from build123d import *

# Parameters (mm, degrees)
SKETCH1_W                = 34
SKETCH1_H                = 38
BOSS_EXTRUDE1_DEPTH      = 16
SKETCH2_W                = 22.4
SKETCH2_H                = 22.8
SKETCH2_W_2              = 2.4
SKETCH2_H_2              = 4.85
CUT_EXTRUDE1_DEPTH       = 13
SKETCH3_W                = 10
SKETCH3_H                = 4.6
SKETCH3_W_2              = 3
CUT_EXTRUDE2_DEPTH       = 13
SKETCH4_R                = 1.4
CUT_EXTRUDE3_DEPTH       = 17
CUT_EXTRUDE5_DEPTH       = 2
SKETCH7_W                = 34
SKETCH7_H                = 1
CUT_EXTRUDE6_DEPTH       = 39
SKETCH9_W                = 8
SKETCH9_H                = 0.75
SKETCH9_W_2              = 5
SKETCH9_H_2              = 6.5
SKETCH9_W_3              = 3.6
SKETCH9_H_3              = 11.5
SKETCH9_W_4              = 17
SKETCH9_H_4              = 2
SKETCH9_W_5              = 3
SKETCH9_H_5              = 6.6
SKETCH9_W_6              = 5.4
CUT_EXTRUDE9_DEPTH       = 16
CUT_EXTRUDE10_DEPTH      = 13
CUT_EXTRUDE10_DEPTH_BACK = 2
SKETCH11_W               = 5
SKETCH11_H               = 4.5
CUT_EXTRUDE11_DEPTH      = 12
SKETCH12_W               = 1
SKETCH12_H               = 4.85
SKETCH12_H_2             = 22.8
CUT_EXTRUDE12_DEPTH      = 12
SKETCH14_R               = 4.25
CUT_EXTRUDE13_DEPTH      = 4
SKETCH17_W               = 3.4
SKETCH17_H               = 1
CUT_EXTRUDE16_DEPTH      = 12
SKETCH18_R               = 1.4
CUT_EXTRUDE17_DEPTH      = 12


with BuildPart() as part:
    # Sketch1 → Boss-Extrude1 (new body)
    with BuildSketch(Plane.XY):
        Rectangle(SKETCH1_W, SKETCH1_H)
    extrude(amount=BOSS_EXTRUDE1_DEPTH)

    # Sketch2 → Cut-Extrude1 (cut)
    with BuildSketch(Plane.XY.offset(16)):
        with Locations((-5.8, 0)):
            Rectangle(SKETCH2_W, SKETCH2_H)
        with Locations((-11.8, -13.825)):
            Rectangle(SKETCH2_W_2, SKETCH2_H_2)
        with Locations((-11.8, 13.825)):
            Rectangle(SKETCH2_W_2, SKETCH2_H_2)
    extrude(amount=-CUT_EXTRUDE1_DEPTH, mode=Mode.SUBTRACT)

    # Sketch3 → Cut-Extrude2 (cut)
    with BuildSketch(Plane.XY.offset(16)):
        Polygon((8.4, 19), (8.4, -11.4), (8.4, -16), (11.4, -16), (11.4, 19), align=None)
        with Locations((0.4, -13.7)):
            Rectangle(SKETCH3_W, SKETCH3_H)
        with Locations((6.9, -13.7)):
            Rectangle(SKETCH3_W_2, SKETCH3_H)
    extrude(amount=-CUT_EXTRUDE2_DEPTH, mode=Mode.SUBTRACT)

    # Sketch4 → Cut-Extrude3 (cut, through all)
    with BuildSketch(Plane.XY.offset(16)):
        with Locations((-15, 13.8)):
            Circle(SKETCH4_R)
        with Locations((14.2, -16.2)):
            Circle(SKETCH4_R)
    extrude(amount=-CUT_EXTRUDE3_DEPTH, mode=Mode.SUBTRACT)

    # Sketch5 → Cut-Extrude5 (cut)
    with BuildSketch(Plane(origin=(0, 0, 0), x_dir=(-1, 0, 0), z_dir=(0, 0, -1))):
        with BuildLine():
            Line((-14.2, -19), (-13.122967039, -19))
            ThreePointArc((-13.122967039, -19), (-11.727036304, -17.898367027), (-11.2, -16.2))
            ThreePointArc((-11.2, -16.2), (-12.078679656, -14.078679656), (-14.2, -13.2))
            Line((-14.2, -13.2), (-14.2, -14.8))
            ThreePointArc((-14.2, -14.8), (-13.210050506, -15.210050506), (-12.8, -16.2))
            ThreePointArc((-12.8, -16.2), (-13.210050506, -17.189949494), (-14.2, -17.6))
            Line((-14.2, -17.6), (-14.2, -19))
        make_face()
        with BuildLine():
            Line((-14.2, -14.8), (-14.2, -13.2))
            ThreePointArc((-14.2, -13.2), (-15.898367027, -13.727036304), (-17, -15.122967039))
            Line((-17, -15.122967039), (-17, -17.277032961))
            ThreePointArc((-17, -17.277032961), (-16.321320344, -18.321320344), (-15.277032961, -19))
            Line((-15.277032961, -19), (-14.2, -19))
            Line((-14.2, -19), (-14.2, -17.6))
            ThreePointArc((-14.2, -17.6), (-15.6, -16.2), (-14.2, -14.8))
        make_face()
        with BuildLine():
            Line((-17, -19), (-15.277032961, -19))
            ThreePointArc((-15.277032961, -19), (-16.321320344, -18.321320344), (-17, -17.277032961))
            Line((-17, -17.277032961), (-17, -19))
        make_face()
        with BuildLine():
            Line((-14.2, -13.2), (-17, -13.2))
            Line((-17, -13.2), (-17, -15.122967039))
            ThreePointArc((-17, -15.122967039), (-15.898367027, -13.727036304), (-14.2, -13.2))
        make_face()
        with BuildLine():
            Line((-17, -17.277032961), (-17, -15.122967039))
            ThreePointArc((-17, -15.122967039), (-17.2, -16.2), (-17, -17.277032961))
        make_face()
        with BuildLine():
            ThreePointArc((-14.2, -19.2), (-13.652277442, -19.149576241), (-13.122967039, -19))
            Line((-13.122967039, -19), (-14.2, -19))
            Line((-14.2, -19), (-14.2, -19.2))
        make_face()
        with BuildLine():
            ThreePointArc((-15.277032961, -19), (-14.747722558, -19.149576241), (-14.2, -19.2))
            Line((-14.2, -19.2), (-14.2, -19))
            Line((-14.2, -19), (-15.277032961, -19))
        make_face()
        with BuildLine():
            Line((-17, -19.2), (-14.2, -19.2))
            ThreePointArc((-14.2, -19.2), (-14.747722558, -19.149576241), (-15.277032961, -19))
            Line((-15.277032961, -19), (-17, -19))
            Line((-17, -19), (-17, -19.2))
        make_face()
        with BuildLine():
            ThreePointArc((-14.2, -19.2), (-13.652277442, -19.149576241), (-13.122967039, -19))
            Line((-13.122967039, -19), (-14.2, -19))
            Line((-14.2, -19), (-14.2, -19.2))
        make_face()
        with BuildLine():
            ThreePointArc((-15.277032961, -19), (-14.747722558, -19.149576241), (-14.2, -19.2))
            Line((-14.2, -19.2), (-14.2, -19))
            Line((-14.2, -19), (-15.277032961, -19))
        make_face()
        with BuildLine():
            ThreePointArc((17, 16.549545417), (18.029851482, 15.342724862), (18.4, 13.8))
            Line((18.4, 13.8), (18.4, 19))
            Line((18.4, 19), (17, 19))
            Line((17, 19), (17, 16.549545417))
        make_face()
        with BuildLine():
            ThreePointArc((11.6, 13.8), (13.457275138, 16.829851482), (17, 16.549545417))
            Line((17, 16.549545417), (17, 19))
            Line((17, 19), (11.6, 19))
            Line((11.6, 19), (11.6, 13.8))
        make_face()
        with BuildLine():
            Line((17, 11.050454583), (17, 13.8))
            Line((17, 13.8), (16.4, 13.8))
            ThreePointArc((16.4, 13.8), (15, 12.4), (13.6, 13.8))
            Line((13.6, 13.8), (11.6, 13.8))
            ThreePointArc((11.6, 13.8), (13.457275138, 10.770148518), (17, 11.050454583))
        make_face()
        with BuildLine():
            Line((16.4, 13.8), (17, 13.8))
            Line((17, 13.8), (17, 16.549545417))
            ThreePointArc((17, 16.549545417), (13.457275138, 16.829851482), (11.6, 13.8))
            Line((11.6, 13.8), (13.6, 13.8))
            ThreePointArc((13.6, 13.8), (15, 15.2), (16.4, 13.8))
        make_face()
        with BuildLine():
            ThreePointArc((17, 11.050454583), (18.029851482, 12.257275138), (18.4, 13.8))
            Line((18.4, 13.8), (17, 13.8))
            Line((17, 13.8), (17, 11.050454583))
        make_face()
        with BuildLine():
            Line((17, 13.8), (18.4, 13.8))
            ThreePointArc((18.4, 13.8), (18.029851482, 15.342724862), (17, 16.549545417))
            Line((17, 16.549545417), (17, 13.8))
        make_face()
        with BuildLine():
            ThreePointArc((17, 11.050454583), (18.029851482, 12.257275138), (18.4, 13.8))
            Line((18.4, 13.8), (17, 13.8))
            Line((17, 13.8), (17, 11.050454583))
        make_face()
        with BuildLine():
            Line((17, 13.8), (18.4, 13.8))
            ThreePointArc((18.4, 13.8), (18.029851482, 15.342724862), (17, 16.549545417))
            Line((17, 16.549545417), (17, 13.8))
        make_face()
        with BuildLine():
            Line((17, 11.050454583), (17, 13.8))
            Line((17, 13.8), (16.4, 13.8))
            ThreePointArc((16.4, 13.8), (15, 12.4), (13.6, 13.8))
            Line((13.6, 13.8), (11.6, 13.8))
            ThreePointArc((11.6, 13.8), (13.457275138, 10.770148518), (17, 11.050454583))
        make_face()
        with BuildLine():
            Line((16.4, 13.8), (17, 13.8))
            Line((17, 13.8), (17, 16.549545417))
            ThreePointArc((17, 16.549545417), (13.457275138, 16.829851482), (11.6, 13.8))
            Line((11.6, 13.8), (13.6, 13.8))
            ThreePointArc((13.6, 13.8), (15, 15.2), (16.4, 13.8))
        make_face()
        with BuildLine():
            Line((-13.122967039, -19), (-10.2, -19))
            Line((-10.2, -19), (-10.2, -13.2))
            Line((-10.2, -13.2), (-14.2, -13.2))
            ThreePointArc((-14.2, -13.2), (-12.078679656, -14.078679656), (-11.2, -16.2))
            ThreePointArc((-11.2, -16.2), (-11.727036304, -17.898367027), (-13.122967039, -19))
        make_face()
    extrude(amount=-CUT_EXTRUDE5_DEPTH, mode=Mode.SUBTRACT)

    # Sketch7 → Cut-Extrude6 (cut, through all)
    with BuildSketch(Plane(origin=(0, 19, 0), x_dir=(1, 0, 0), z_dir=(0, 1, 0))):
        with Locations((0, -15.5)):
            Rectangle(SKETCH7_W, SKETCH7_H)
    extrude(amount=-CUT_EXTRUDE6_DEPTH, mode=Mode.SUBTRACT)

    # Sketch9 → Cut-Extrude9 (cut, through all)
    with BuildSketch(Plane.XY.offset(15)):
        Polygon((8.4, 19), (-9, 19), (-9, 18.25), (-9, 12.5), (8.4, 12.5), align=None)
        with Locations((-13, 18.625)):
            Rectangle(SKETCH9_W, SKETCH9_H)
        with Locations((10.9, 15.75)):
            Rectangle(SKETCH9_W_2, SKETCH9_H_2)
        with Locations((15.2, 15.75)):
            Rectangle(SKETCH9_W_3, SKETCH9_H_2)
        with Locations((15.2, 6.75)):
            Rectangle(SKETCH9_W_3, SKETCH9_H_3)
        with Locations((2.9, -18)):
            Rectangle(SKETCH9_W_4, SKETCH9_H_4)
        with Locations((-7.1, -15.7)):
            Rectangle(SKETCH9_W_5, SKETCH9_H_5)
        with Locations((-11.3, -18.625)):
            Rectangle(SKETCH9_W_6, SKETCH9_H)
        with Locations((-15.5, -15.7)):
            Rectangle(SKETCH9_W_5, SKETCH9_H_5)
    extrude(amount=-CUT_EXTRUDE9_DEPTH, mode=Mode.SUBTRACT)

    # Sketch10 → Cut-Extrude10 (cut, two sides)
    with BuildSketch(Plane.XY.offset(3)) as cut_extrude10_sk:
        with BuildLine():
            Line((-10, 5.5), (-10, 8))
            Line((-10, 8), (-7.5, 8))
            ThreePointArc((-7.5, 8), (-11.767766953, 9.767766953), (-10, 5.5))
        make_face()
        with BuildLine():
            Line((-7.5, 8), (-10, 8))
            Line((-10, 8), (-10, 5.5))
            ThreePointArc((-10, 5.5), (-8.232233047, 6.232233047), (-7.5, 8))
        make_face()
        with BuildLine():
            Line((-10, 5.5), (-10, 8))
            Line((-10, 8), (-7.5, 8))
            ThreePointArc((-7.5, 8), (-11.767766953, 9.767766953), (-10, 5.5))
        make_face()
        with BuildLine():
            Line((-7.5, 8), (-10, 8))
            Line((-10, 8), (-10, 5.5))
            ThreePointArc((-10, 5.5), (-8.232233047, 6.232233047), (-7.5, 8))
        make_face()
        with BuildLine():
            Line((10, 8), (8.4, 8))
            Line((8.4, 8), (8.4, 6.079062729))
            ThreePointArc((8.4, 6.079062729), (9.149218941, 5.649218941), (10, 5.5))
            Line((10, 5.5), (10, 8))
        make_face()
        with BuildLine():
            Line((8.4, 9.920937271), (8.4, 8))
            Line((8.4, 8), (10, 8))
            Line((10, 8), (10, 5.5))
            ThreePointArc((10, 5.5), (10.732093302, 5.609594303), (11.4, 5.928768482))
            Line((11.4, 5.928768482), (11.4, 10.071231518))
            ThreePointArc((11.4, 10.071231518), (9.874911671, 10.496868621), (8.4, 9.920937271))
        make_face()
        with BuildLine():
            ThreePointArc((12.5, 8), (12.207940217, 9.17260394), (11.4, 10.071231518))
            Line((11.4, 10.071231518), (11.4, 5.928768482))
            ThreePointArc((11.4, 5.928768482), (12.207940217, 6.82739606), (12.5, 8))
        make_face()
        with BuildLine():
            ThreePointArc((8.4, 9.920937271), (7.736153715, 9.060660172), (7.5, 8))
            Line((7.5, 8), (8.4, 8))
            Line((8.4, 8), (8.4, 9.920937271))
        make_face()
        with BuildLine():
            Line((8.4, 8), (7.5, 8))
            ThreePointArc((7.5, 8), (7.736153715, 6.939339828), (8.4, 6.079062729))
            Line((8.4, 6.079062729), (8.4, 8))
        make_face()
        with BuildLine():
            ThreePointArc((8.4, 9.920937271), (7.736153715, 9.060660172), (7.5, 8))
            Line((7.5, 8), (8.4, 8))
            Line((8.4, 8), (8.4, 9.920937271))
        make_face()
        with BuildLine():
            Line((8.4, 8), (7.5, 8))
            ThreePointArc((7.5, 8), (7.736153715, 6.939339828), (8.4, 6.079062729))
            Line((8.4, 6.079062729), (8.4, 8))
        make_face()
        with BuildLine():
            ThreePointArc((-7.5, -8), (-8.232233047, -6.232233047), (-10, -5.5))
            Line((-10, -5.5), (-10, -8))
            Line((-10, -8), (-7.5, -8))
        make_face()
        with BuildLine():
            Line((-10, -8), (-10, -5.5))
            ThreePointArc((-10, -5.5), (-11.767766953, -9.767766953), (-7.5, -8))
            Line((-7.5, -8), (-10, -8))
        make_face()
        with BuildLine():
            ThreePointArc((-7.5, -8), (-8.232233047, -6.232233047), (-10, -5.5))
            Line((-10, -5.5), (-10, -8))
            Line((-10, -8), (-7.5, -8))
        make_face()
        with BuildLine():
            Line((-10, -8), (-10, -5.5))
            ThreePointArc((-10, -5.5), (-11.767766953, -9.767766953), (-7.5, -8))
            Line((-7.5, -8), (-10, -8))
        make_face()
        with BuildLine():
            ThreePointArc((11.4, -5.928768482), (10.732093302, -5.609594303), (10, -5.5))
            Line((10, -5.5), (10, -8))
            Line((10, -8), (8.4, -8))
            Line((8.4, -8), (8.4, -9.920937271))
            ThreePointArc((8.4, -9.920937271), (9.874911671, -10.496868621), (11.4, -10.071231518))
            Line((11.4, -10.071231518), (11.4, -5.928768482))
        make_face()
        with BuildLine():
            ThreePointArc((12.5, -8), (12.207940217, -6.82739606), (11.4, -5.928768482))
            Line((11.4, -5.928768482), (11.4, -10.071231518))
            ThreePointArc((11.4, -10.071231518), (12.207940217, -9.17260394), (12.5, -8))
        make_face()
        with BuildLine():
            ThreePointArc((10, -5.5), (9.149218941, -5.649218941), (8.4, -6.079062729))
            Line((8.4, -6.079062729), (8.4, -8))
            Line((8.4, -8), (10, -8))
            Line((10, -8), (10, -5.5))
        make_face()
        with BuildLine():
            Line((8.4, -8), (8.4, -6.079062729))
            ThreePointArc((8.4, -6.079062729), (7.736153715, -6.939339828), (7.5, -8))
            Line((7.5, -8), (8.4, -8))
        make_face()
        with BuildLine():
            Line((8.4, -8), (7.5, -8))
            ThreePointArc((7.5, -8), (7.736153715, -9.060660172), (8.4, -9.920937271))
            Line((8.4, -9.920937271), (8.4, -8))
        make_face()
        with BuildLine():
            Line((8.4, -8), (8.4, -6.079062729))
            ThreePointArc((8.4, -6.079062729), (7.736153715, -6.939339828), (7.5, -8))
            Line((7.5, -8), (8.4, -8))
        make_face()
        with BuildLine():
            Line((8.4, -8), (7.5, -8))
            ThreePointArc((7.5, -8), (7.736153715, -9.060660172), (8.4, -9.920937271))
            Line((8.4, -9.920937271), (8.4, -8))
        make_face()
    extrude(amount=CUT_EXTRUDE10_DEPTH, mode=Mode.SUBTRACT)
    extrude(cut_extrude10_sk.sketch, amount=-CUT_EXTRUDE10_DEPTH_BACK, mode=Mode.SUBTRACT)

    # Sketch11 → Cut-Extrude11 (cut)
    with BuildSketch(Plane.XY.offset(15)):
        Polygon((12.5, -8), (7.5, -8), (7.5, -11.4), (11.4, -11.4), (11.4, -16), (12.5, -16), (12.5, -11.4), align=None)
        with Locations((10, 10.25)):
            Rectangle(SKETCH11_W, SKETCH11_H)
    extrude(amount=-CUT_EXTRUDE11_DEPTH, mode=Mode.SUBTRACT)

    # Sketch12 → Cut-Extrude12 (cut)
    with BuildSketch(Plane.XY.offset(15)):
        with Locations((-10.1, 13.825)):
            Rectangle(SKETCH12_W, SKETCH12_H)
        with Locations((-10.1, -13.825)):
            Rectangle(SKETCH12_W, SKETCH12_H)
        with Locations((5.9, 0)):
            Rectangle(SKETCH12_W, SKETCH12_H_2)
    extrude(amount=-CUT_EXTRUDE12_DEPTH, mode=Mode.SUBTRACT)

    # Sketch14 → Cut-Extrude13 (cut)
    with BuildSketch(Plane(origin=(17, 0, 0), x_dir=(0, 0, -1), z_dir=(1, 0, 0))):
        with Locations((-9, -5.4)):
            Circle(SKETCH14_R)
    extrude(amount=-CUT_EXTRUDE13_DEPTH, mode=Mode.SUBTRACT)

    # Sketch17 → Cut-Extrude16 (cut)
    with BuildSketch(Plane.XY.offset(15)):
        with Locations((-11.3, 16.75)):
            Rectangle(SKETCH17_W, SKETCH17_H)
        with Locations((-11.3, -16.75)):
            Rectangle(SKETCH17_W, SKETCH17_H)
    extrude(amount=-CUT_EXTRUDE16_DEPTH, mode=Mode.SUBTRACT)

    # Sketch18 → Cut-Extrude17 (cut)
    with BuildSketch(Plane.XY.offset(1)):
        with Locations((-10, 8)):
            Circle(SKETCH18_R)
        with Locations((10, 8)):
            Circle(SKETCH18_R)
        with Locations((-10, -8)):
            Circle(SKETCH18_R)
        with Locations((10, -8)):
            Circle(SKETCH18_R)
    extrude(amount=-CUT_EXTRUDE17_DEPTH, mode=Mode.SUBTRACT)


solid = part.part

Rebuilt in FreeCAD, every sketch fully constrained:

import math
import FreeCAD as App
import Part
import Sketcher
from FreeCAD import Vector

doc = App.newDocument("Part")
body = doc.addObject("PartDesign::Body", "Body")

sketch1 = body.newObject("Sketcher::SketchObject", "Sketch")
sketch1.AttachmentSupport = (doc.getObject("XY_Plane"), [""])
sketch1.MapMode = "FlatFace"
sketch1.addGeometry([
    Part.LineSegment(Vector(-17, 19, 0), Vector(-17, -19, 0)),
    Part.LineSegment(Vector(-17, -19, 0), Vector(17, -19, 0)),
    Part.LineSegment(Vector(17, -19, 0), Vector(17, 19, 0)),
    Part.LineSegment(Vector(17, 19, 0), Vector(-17, 19, 0)),
], False)
sketch1.addConstraint([
    Sketcher.Constraint("Coincident", 0, 2, 1, 1),
    Sketcher.Constraint("Coincident", 1, 2, 2, 1),
    Sketcher.Constraint("Coincident", 2, 2, 3, 1),
    Sketcher.Constraint("Coincident", 3, 2, 0, 1),
    Sketcher.Constraint("Vertical", 0),
    Sketcher.Constraint("Horizontal", 1),
    Sketcher.Constraint("Vertical", 2),
    Sketcher.Constraint("Horizontal", 3),
    Sketcher.Constraint("Symmetric", 0, 2, 2, 2, -1, 1),
    Sketcher.Constraint("DistanceX", 1, 1, 1, 2, 34.0),
    Sketcher.Constraint("DistanceY", 0, 2, 0, 1, 38.0),
])
pad1 = body.newObject("PartDesign::Pad", "Pad")
pad1.Profile = sketch1
pad1.Length = 16

sketch2 = body.newObject("Sketcher::SketchObject", "Sketch001")
sketch2.AttachmentSupport = (doc.getObject("XY_Plane"), [""])
sketch2.MapMode = "FlatFace"
sketch2.AttachmentOffset = App.Placement(Vector(0, 0, 16), App.Rotation())
sketch2.addGeometry([
    Part.LineSegment(Vector(-17, 11.4, 0), Vector(-17, -11.4, 0)),
    Part.LineSegment(Vector(-17, -11.4, 0), Vector(-13, -11.4, 0)),
    Part.LineSegment(Vector(-13, -11.4, 0), Vector(-13, -16.25, 0)),
    Part.LineSegment(Vector(-13, -16.25, 0), Vector(-10.6, -16.25, 0)),
    Part.LineSegment(Vector(-10.6, -16.25, 0), Vector(-10.6, -11.4, 0)),
    Part.LineSegment(Vector(-10.6, -11.4, 0), Vector(5.4, -11.4, 0)),
    Part.LineSegment(Vector(5.4, -11.4, 0), Vector(5.4, 11.4, 0)),
    Part.LineSegment(Vector(5.4, 11.4, 0), Vector(-10.6, 11.4, 0)),
    Part.LineSegment(Vector(-10.6, 11.4, 0), Vector(-10.6, 16.25, 0)),
    Part.LineSegment(Vector(-10.6, 16.25, 0), Vector(-13, 16.25, 0)),
    Part.LineSegment(Vector(-13, 16.25, 0), Vector(-13, 11.4, 0)),
    Part.LineSegment(Vector(-13, 11.4, 0), Vector(-17, 11.4, 0)),
], False)
sketch2.addConstraint([
    Sketcher.Constraint("Coincident", 0, 2, 1, 1),
    Sketcher.Constraint("Coincident", 1, 2, 2, 1),
    Sketcher.Constraint("Coincident", 2, 2, 3, 1),
    Sketcher.Constraint("Coincident", 3, 2, 4, 1),
    Sketcher.Constraint("Coincident", 4, 2, 5, 1),
    Sketcher.Constraint("Coincident", 5, 2, 6, 1),
    Sketcher.Constraint("Coincident", 6, 2, 7, 1),
    Sketcher.Constraint("Coincident", 7, 2, 8, 1),
    Sketcher.Constraint("Coincident", 8, 2, 9, 1),
    Sketcher.Constraint("Coincident", 9, 2, 10, 1),
    Sketcher.Constraint("Coincident", 10, 2, 11, 1),
    Sketcher.Constraint("Coincident", 11, 2, 0, 1),
    Sketcher.Constraint("Vertical", 0),
    Sketcher.Constraint("Horizontal", 1),
    Sketcher.Constraint("Vertical", 2),
    Sketcher.Constraint("Horizontal", 3),
    Sketcher.Constraint("Vertical", 4),
    Sketcher.Constraint("Horizontal", 5),
    Sketcher.Constraint("Vertical", 6),
    Sketcher.Constraint("Horizontal", 7),
    Sketcher.Constraint("Vertical", 8),
    Sketcher.Constraint("Horizontal", 9),
    Sketcher.Constraint("Vertical", 10),
    Sketcher.Constraint("Horizontal", 11),
    Sketcher.Constraint("Symmetric", 4, 2, 7, 2, -1),
    Sketcher.Constraint("Symmetric", 2, 2, 9, 2, -1),
    Sketcher.Constraint("Horizontal", 1, 2, 4, 2),
    Sketcher.Constraint("Horizontal", 7, 2, 10, 2),
    Sketcher.Constraint("DistanceX", 1, 1, 1, 2, 4.0),
    Sketcher.Constraint("DistanceX", 5, 1, 5, 2, 16.0),
    Sketcher.Constraint("DistanceX", 3, 1, 3, 2, 2.4),
    Sketcher.Constraint("DistanceY", 0, 2, 0, 1, 22.8),
    Sketcher.Constraint("DistanceX", 0, 2, -1, 1, 17.0),
    Sketcher.Constraint("DistanceY", 2, 2, 2, 1, 4.85),
])
pocket1 = body.newObject("PartDesign::Pocket", "Pocket")
pocket1.Profile = sketch2
pocket1.Length = 13

sketch3 = body.newObject("Sketcher::SketchObject", "Sketch002")
sketch3.AttachmentSupport = (doc.getObject("XY_Plane"), [""])
sketch3.MapMode = "FlatFace"
sketch3.AttachmentOffset = App.Placement(Vector(0, 0, 16), App.Rotation())
sketch3.addGeometry([
    Part.LineSegment(Vector(8.4, 19, 0), Vector(8.4, -11.4, 0)),
    Part.LineSegment(Vector(8.4, -11.4, 0), Vector(-4.6, -11.4, 0)),
    Part.LineSegment(Vector(-4.6, -11.4, 0), Vector(-4.6, -16, 0)),
    Part.LineSegment(Vector(-4.6, -16, 0), Vector(11.4, -16, 0)),
    Part.LineSegment(Vector(11.4, -16, 0), Vector(11.4, 19, 0)),
    Part.LineSegment(Vector(11.4, 19, 0), Vector(8.4, 19, 0)),
], False)
sketch3.addConstraint([
    Sketcher.Constraint("Coincident", 0, 2, 1, 1),
    Sketcher.Constraint("Coincident", 1, 2, 2, 1),
    Sketcher.Constraint("Coincident", 2, 2, 3, 1),
    Sketcher.Constraint("Coincident", 3, 2, 4, 1),
    Sketcher.Constraint("Coincident", 4, 2, 5, 1),
    Sketcher.Constraint("Coincident", 5, 2, 0, 1),
    Sketcher.Constraint("Vertical", 0),
    Sketcher.Constraint("Horizontal", 1),
    Sketcher.Constraint("Vertical", 2),
    Sketcher.Constraint("Horizontal", 3),
    Sketcher.Constraint("Vertical", 4),
    Sketcher.Constraint("Horizontal", 5),
    Sketcher.Constraint("DistanceX", 1, 2, 1, 1, 13.0),
    Sketcher.Constraint("DistanceX", 3, 1, 3, 2, 16.0),
    Sketcher.Constraint("DistanceY", 4, 1, 4, 2, 35.0),
    Sketcher.Constraint("DistanceY", 0, 2, 0, 1, 30.4),
    Sketcher.Constraint("DistanceY", 2, 2, -1, 1, 16.0),
    Sketcher.Constraint("DistanceX", -1, 1, 0, 2, 8.4),
])
pocket2 = body.newObject("PartDesign::Pocket", "Pocket001")
pocket2.Profile = sketch3
pocket2.Length = 13

sketch4 = body.newObject("Sketcher::SketchObject", "Sketch003")
sketch4.AttachmentSupport = (doc.getObject("XY_Plane"), [""])
sketch4.MapMode = "FlatFace"
sketch4.AttachmentOffset = App.Placement(Vector(0, 0, 16), App.Rotation())
sketch4.addGeometry([
    Part.Circle(Vector(-15, 13.8, 0), Vector(0, 0, 1), 1.4),
    Part.Circle(Vector(14.2, -16.2, 0), Vector(0, 0, 1), 1.4),
], False)
sketch4.addConstraint([
    Sketcher.Constraint("Equal", 0, 1),
    Sketcher.Constraint("Diameter", 0, 2.8),
    Sketcher.Constraint("DistanceX", 0, 3, -1, 1, 15.0),
    Sketcher.Constraint("DistanceY", 1, 3, 0, 3, 30.0),
    Sketcher.Constraint("DistanceY", -1, 1, 0, 3, 13.8),
    Sketcher.Constraint("DistanceX", -1, 1, 1, 3, 14.2),
])
pocket3 = body.newObject("PartDesign::Pocket", "Pocket002")
pocket3.Profile = sketch4
pocket3.Type = "ThroughAll"

sketch5 = body.newObject("Sketcher::SketchObject", "Sketch004")
sketch5.AttachmentSupport = (doc.getObject("XY_Plane"), [""])
sketch5.MapMode = "FlatFace"
sketch5.addGeometry([
    Part.LineSegment(Vector(17, -17.277033, 0), Vector(17, -19.2, 0)),
    Part.LineSegment(Vector(17, -19.2, 0), Vector(14.2, -19.2, 0)),
    Part.ArcOfCircle(Part.Circle(Vector(14.2, -16.2, 0), Vector(0, 0, 1), 3), math.radians(-111.03947), math.radians(-90)),
    Part.LineSegment(Vector(13.122967, -19, 0), Vector(10.2, -19, 0)),
    Part.LineSegment(Vector(10.2, -19, 0), Vector(10.2, -13.2, 0)),
    Part.LineSegment(Vector(10.2, -13.2, 0), Vector(17, -13.2, 0)),
    Part.LineSegment(Vector(17, -13.2, 0), Vector(17, -15.122967, 0)),
    Part.ArcOfCircle(Part.Circle(Vector(14.2, -16.2, 0), Vector(0, 0, 1), 3), math.radians(-21.03947), math.radians(21.03947)),
    Part.ArcOfCircle(Part.Circle(Vector(14.2, -16.2, 0), Vector(0, 0, 1), 1.4), math.radians(90), math.radians(180)),
    Part.ArcOfCircle(Part.Circle(Vector(14.2, -16.2, 0), Vector(0, 0, 1), 1.4), math.radians(180), math.radians(270)),
    Part.ArcOfCircle(Part.Circle(Vector(14.2, -16.2, 0), Vector(0, 0, 1), 1.4), math.radians(-90), math.radians(90)),
    Part.LineSegment(Vector(-11.6, 19, 0), Vector(-11.6, 13.8, 0)),
    Part.ArcOfCircle(Part.Circle(Vector(-15, 13.8, 0), Vector(0, 0, 1), 3.4), math.radians(-126.031879), math.radians(0)),
    Part.ArcOfCircle(Part.Circle(Vector(-15, 13.8, 0), Vector(0, 0, 1), 3.4), math.radians(180), math.radians(233.968121)),
    Part.LineSegment(Vector(-18.4, 13.8, 0), Vector(-18.4, 19, 0)),
    Part.LineSegment(Vector(-18.4, 19, 0), Vector(-11.6, 19, 0)),
    Part.Circle(Vector(-15, 13.8, 0), Vector(0, 0, 1), 1.4),
], False)
sketch5.addConstraint([
    Sketcher.Constraint("Coincident", 0, 2, 1, 1),
    Sketcher.Constraint("Tangent", 1, 2, 2, 2),
    Sketcher.Constraint("Coincident", 2, 1, 3, 1),
    Sketcher.Constraint("Coincident", 3, 2, 4, 1),
    Sketcher.Constraint("Coincident", 4, 2, 5, 1),
    Sketcher.Constraint("Coincident", 5, 2, 6, 1),
    Sketcher.Constraint("Coincident", 6, 2, 7, 2),
    Sketcher.Constraint("Coincident", 7, 1, 0, 1),
    Sketcher.Constraint("Tangent", 8, 2, 9, 1),
    Sketcher.Constraint("Tangent", 9, 2, 10, 1),
    Sketcher.Constraint("Tangent", 10, 2, 8, 1),
    Sketcher.Constraint("Tangent", 11, 2, 12, 2),
    Sketcher.Constraint("Tangent", 12, 1, 13, 2),
    Sketcher.Constraint("Tangent", 13, 1, 14, 1),
    Sketcher.Constraint("Coincident", 14, 2, 15, 1),
    Sketcher.Constraint("Coincident", 15, 2, 11, 1),
    Sketcher.Constraint("Vertical", 0),
    Sketcher.Constraint("Horizontal", 1),
    Sketcher.Constraint("Horizontal", 3),
    Sketcher.Constraint("Vertical", 4),
    Sketcher.Constraint("Horizontal", 5),
    Sketcher.Constraint("Vertical", 6),
    Sketcher.Constraint("Vertical", 11),
    Sketcher.Constraint("Vertical", 14),
    Sketcher.Constraint("Horizontal", 15),
    Sketcher.Constraint("Coincident", 7, 3, 2, 3),
    Sketcher.Constraint("Coincident", 8, 3, 2, 3),
    Sketcher.Constraint("Coincident", 16, 3, 12, 3),
    Sketcher.Constraint("Equal", 2, 7),
    Sketcher.Constraint("Equal", 12, 13),
    Sketcher.Constraint("Equal", 10, 16),
    Sketcher.Constraint("Horizontal", 10, 3, 8, 2),
    Sketcher.Constraint("Vertical", 0, 2, 5, 2),
    Sketcher.Constraint("Vertical", 1, 2, 9, 2),
    Sketcher.Constraint("Vertical", 9, 2, 10, 2),
    Sketcher.Constraint("Equal", 5, 15),
    Sketcher.Constraint("Equal", 0, 6),
    Sketcher.Constraint("Radius", 2, 3.0),
    Sketcher.Constraint("Diameter", 16, 2.8),
    Sketcher.Constraint("Radius", 12, 3.4),
    Sketcher.Constraint("DistanceX", 1, 2, 1, 1, 2.8),
    Sketcher.Constraint("DistanceY", 4, 1, 4, 2, 5.8),
    Sketcher.Constraint("DistanceY", 11, 2, 11, 1, 5.2),
    Sketcher.Constraint("DistanceX", 12, 3, -1, 1, 15.0),
    Sketcher.Constraint("DistanceX", -1, 1, 0, 2, 17.0),
    Sketcher.Constraint("DistanceY", 2, 1, -1, 1, 19.0),
    Sketcher.Constraint("DistanceX", 12, 1, -1, 1, 17.0),
    Sketcher.Constraint("DistanceY", -1, 1, 14, 2, 19.0),
])
pocket4 = body.newObject("PartDesign::Pocket", "Pocket003")
pocket4.Profile = sketch5
pocket4.Length = 2
pocket4.Reversed = True

sketch6 = body.newObject("Sketcher::SketchObject", "Sketch005")
sketch6.AttachmentSupport = (doc.getObject("XZ_Plane"), [""])
sketch6.MapMode = "FlatFace"
sketch6.AttachmentOffset = App.Placement(Vector(0, 0, -19), App.Rotation())
sketch6.addGeometry([
    Part.LineSegment(Vector(-17, 15, 0), Vector(-17, 16, 0)),
    Part.LineSegment(Vector(-17, 16, 0), Vector(17, 16, 0)),
    Part.LineSegment(Vector(17, 16, 0), Vector(17, 15, 0)),
    Part.LineSegment(Vector(17, 15, 0), Vector(-17, 15, 0)),
], False)
sketch6.addConstraint([
    Sketcher.Constraint("Coincident", 0, 2, 1, 1),
    Sketcher.Constraint("Coincident", 1, 2, 2, 1),
    Sketcher.Constraint("Coincident", 2, 2, 3, 1),
    Sketcher.Constraint("Coincident", 3, 2, 0, 1),
    Sketcher.Constraint("Vertical", 0),
    Sketcher.Constraint("Horizontal", 1),
    Sketcher.Constraint("Vertical", 2),
    Sketcher.Constraint("Horizontal", 3),
    Sketcher.Constraint("DistanceX", 1, 1, 1, 2, 34.0),
    Sketcher.Constraint("DistanceY", 0, 1, 0, 2, 1.0),
    Sketcher.Constraint("DistanceX", 0, 2, -1, 1, 17.0),
    Sketcher.Constraint("DistanceY", -1, 1, 0, 2, 16.0),
])
pocket5 = body.newObject("PartDesign::Pocket", "Pocket004")
pocket5.Profile = sketch6
pocket5.Type = "ThroughAll"
pocket5.Reversed = True

sketch7 = body.newObject("Sketcher::SketchObject", "Sketch006")
sketch7.AttachmentSupport = (doc.getObject("XY_Plane"), [""])
sketch7.MapMode = "FlatFace"
sketch7.AttachmentOffset = App.Placement(Vector(0, 0, 15), App.Rotation())
sketch7.addGeometry([
    Part.LineSegment(Vector(-17, 19, 0), Vector(-17, 18.25, 0)),
    Part.LineSegment(Vector(-17, 18.25, 0), Vector(-9, 18.25, 0)),
    Part.LineSegment(Vector(-9, 18.25, 0), Vector(-9, 12.5, 0)),
    Part.LineSegment(Vector(-9, 12.5, 0), Vector(13.4, 12.5, 0)),
    Part.LineSegment(Vector(13.4, 12.5, 0), Vector(13.4, 1, 0)),
    Part.LineSegment(Vector(13.4, 1, 0), Vector(17, 1, 0)),
    Part.LineSegment(Vector(17, 1, 0), Vector(17, 19, 0)),
    Part.LineSegment(Vector(17, 19, 0), Vector(-17, 19, 0)),
    Part.LineSegment(Vector(11.4, -19, 0), Vector(11.4, -17, 0)),
    Part.LineSegment(Vector(11.4, -17, 0), Vector(-5.6, -17, 0)),
    Part.LineSegment(Vector(-5.6, -17, 0), Vector(-5.6, -12.4, 0)),
    Part.LineSegment(Vector(-5.6, -12.4, 0), Vector(-8.6, -12.4, 0)),
    Part.LineSegment(Vector(-8.6, -12.4, 0), Vector(-8.6, -18.25, 0)),
    Part.LineSegment(Vector(-8.6, -18.25, 0), Vector(-14, -18.25, 0)),
    Part.LineSegment(Vector(-14, -18.25, 0), Vector(-14, -12.4, 0)),
    Part.LineSegment(Vector(-14, -12.4, 0), Vector(-17, -12.4, 0)),
    Part.LineSegment(Vector(-17, -12.4, 0), Vector(-17, -19, 0)),
    Part.LineSegment(Vector(-17, -19, 0), Vector(11.4, -19, 0)),
], False)
sketch7.addConstraint([
    Sketcher.Constraint("Coincident", 0, 2, 1, 1),
    Sketcher.Constraint("Coincident", 1, 2, 2, 1),
    Sketcher.Constraint("Coincident", 2, 2, 3, 1),
    Sketcher.Constraint("Coincident", 3, 2, 4, 1),
    Sketcher.Constraint("Coincident", 4, 2, 5, 1),
    Sketcher.Constraint("Coincident", 5, 2, 6, 1),
    Sketcher.Constraint("Coincident", 6, 2, 7, 1),
    Sketcher.Constraint("Coincident", 7, 2, 0, 1),
    Sketcher.Constraint("Coincident", 8, 2, 9, 1),
    Sketcher.Constraint("Coincident", 9, 2, 10, 1),
    Sketcher.Constraint("Coincident", 10, 2, 11, 1),
    Sketcher.Constraint("Coincident", 11, 2, 12, 1),
    Sketcher.Constraint("Coincident", 12, 2, 13, 1),
    Sketcher.Constraint("Coincident", 13, 2, 14, 1),
    Sketcher.Constraint("Coincident", 14, 2, 15, 1),
    Sketcher.Constraint("Coincident", 15, 2, 16, 1),
    Sketcher.Constraint("Coincident", 16, 2, 17, 1),
    Sketcher.Constraint("Coincident", 17, 2, 8, 1),
    Sketcher.Constraint("Vertical", 0),
    Sketcher.Constraint("Horizontal", 1),
    Sketcher.Constraint("Vertical", 2),
    Sketcher.Constraint("Horizontal", 3),
    Sketcher.Constraint("Vertical", 4),
    Sketcher.Constraint("Horizontal", 5),
    Sketcher.Constraint("Vertical", 6),
    Sketcher.Constraint("Horizontal", 7),
    Sketcher.Constraint("Vertical", 8),
    Sketcher.Constraint("Horizontal", 9),
    Sketcher.Constraint("Vertical", 10),
    Sketcher.Constraint("Horizontal", 11),
    Sketcher.Constraint("Vertical", 12),
    Sketcher.Constraint("Horizontal", 13),
    Sketcher.Constraint("Vertical", 14),
    Sketcher.Constraint("Horizontal", 15),
    Sketcher.Constraint("Vertical", 16),
    Sketcher.Constraint("Horizontal", 17),
    Sketcher.Constraint("Symmetric", 6, 2, 16, 2, -1, 1),
    Sketcher.Constraint("Horizontal", 11, 2, 14, 2),
    Sketcher.Constraint("Vertical", 7, 2, 15, 2),
    Sketcher.Constraint("Equal", 11, 15),
    Sketcher.Constraint("DistanceX", 1, 1, 1, 2, 8.0),
    Sketcher.Constraint("DistanceX", 7, 2, 7, 1, 34.0),
    Sketcher.Constraint("DistanceX", 9, 2, 9, 1, 17.0),
    Sketcher.Constraint("DistanceX", 11, 2, 11, 1, 3.0),
    Sketcher.Constraint("DistanceY", 6, 1, 6, 2, 18.0),
    Sketcher.Constraint("DistanceY", 8, 1, 8, 2, 2.0),
    Sketcher.Constraint("DistanceX", 3, 1, 3, 2, 22.4),
    Sketcher.Constraint("DistanceX", 13, 2, 13, 1, 5.4),
    Sketcher.Constraint("DistanceY", 4, 2, 4, 1, 11.5),
    Sketcher.Constraint("DistanceY", 10, 1, 10, 2, 4.6),
    Sketcher.Constraint("DistanceY", -1, 1, 4, 2, 1.0),
    Sketcher.Constraint("DistanceY", 0, 2, 0, 1, 0.75),
    Sketcher.Constraint("DistanceY", 12, 2, 12, 1, 5.85),
])
pocket6 = body.newObject("PartDesign::Pocket", "Pocket005")
pocket6.Profile = sketch7
pocket6.Type = "ThroughAll"

sketch8 = body.newObject("Sketcher::SketchObject", "Sketch007")
sketch8.AttachmentSupport = (doc.getObject("XY_Plane"), [""])
sketch8.MapMode = "FlatFace"
sketch8.AttachmentOffset = App.Placement(Vector(0, 0, 3), App.Rotation())
sketch8.addGeometry([
    Part.ArcOfCircle(Part.Circle(Vector(-10, 8, 0), Vector(0, 0, 1), 2.5), math.radians(0), math.radians(270)),
    Part.ArcOfCircle(Part.Circle(Vector(-10, 8, 0), Vector(0, 0, 1), 2.5), math.radians(-90), math.radians(0)),
    Part.ArcOfCircle(Part.Circle(Vector(10, 8, 0), Vector(0, 0, 1), 2.5), math.radians(180), math.radians(230.208181)),
    Part.ArcOfCircle(Part.Circle(Vector(10, 8, 0), Vector(0, 0, 1), 2.5), math.radians(-129.791819), math.radians(-90)),
    Part.ArcOfCircle(Part.Circle(Vector(10, 8, 0), Vector(0, 0, 1), 2.5), math.radians(-90), math.radians(-55.944202)),
    Part.ArcOfCircle(Part.Circle(Vector(10, 8, 0), Vector(0, 0, 1), 2.5), math.radians(-55.944202), math.radians(0)),
    Part.ArcOfCircle(Part.Circle(Vector(10, 8, 0), Vector(0, 0, 1), 2.5), math.radians(0), math.radians(55.944202)),
    Part.ArcOfCircle(Part.Circle(Vector(10, 8, 0), Vector(0, 0, 1), 2.5), math.radians(55.944202), math.radians(129.79182)),
    Part.ArcOfCircle(Part.Circle(Vector(10, 8, 0), Vector(0, 0, 1), 2.5), math.radians(129.791819), math.radians(180)),
    Part.ArcOfCircle(Part.Circle(Vector(-10, -8, 0), Vector(0, 0, 1), 2.5), math.radians(0), math.radians(90)),
    Part.ArcOfCircle(Part.Circle(Vector(-10, -8, 0), Vector(0, 0, 1), 2.5), math.radians(90), math.radians(360)),
    Part.ArcOfCircle(Part.Circle(Vector(10, -8, 0), Vector(0, 0, 1), 2.5), math.radians(-55.944202), math.radians(0)),
    Part.ArcOfCircle(Part.Circle(Vector(10, -8, 0), Vector(0, 0, 1), 2.5), math.radians(0), math.radians(55.944202)),
    Part.ArcOfCircle(Part.Circle(Vector(10, -8, 0), Vector(0, 0, 1), 2.5), math.radians(55.944202), math.radians(90)),
    Part.ArcOfCircle(Part.Circle(Vector(10, -8, 0), Vector(0, 0, 1), 2.5), math.radians(90), math.radians(129.791819)),
    Part.ArcOfCircle(Part.Circle(Vector(10, -8, 0), Vector(0, 0, 1), 2.5), math.radians(129.791819), math.radians(180)),
    Part.ArcOfCircle(Part.Circle(Vector(10, -8, 0), Vector(0, 0, 1), 2.5), math.radians(180), math.radians(230.208181)),
    Part.ArcOfCircle(Part.Circle(Vector(10, -8, 0), Vector(0, 0, 1), 2.5), math.radians(-129.79182), math.radians(-55.944202)),
], False)
sketch8.addConstraint([
    Sketcher.Constraint("Tangent", 0, 1, 1, 2),
    Sketcher.Constraint("Coincident", 1, 1, 0, 2),
    Sketcher.Constraint("Tangent", 2, 2, 3, 1),
    Sketcher.Constraint("Tangent", 3, 2, 4, 1),
    Sketcher.Constraint("Tangent", 4, 2, 5, 1),
    Sketcher.Constraint("Tangent", 5, 2, 6, 1),
    Sketcher.Constraint("Tangent", 6, 2, 7, 1),
    Sketcher.Constraint("Tangent", 7, 2, 8, 1),
    Sketcher.Constraint("Tangent", 8, 2, 2, 1),
    Sketcher.Constraint("Tangent", 9, 1, 10, 2),
    Sketcher.Constraint("Coincident", 10, 1, 9, 2),
    Sketcher.Constraint("Tangent", 11, 2, 12, 1),
    Sketcher.Constraint("Tangent", 12, 2, 13, 1),
    Sketcher.Constraint("Tangent", 13, 2, 14, 1),
    Sketcher.Constraint("Tangent", 14, 2, 15, 1),
    Sketcher.Constraint("Tangent", 15, 2, 16, 1),
    Sketcher.Constraint("Tangent", 16, 2, 17, 1),
    Sketcher.Constraint("Tangent", 17, 2, 11, 1),
    Sketcher.Constraint("Coincident", 4, 3, 2, 3),
    Sketcher.Constraint("Coincident", 6, 3, 2, 3),
    Sketcher.Constraint("Coincident", 13, 3, 11, 3),
    Sketcher.Constraint("Coincident", 15, 3, 11, 3),
    Sketcher.Constraint("Equal", 1, 2),
    Sketcher.Constraint("Equal", 8, 9),
    Sketcher.Constraint("Equal", 10, 11),
    Sketcher.Constraint("Symmetric", 2, 3, 9, 3, -1, 1),
    Sketcher.Constraint("Symmetric", 0, 3, 11, 3, -1, 1),
    Sketcher.Constraint("Symmetric", 0, 3, 2, 3, -2),
    Sketcher.Constraint("Horizontal", 8, 3, 0, 1),
    Sketcher.Constraint("Horizontal", 0, 1, 5, 2),
    Sketcher.Constraint("Horizontal", 5, 2, 8, 2),
    Sketcher.Constraint("Horizontal", 17, 3, 9, 1),
    Sketcher.Constraint("Horizontal", 9, 1, 11, 2),
    Sketcher.Constraint("Horizontal", 11, 2, 15, 2),
    Sketcher.Constraint("Vertical", 10, 3, 1, 1),
    Sketcher.Constraint("Vertical", 17, 3, 3, 2),
    Sketcher.Constraint("Vertical", 4, 2, 6, 2),
    Sketcher.Constraint("Vertical", 2, 2, 7, 2),
    Sketcher.Constraint("Vertical", 1, 1, 10, 1),
    Sketcher.Constraint("Vertical", 6, 2, 12, 2),
    Sketcher.Constraint("Vertical", 3, 2, 13, 2),
    Sketcher.Constraint("Vertical", 7, 2, 14, 2),
    Sketcher.Constraint("Vertical", 14, 2, 16, 2),
    Sketcher.Constraint("Vertical", 12, 2, 17, 2),
    Sketcher.Constraint("Radius", 0, 2.5),
    Sketcher.Constraint("DistanceX", 0, 3, -1, 1, 10.0),
    Sketcher.Constraint("DistanceY", -1, 1, 0, 3, 8.0),
    Sketcher.Constraint("DistanceX", -1, 1, 2, 2, 8.4),
    Sketcher.Constraint("DistanceX", -1, 1, 4, 2, 11.4),
])
pocket7 = body.newObject("PartDesign::Pocket", "Pocket006")
pocket7.Profile = sketch8
pocket7.Type = "TwoLengths"
pocket7.Length = 13
pocket7.Length2 = 2
pocket7.Reversed = True

sketch9 = body.newObject("Sketcher::SketchObject", "Sketch008")
sketch9.AttachmentSupport = (doc.getObject("XY_Plane"), [""])
sketch9.MapMode = "FlatFace"
sketch9.AttachmentOffset = App.Placement(Vector(0, 0, 15), App.Rotation())
sketch9.addGeometry([
    Part.LineSegment(Vector(12.5, -8, 0), Vector(7.5, -8, 0)),
    Part.LineSegment(Vector(7.5, -8, 0), Vector(7.5, -11.4, 0)),
    Part.LineSegment(Vector(7.5, -11.4, 0), Vector(11.4, -11.4, 0)),
    Part.LineSegment(Vector(11.4, -11.4, 0), Vector(11.4, -16, 0)),
    Part.LineSegment(Vector(11.4, -16, 0), Vector(12.5, -16, 0)),
    Part.LineSegment(Vector(12.5, -16, 0), Vector(12.5, -8, 0)),
    Part.LineSegment(Vector(7.5, 12.5, 0), Vector(7.5, 8, 0)),
    Part.LineSegment(Vector(7.5, 8, 0), Vector(12.5, 8, 0)),
    Part.LineSegment(Vector(12.5, 8, 0), Vector(12.5, 12.5, 0)),
    Part.LineSegment(Vector(12.5, 12.5, 0), Vector(7.5, 12.5, 0)),
], False)
sketch9.addConstraint([
    Sketcher.Constraint("Coincident", 0, 2, 1, 1),
    Sketcher.Constraint("Coincident", 1, 2, 2, 1),
    Sketcher.Constraint("Coincident", 2, 2, 3, 1),
    Sketcher.Constraint("Coincident", 3, 2, 4, 1),
    Sketcher.Constraint("Coincident", 4, 2, 5, 1),
    Sketcher.Constraint("Coincident", 5, 2, 0, 1),
    Sketcher.Constraint("Coincident", 6, 2, 7, 1),
    Sketcher.Constraint("Coincident", 7, 2, 8, 1),
    Sketcher.Constraint("Coincident", 8, 2, 9, 1),
    Sketcher.Constraint("Coincident", 9, 2, 6, 1),
    Sketcher.Constraint("Horizontal", 0),
    Sketcher.Constraint("Vertical", 1),
    Sketcher.Constraint("Horizontal", 2),
    Sketcher.Constraint("Vertical", 3),
    Sketcher.Constraint("Horizontal", 4),
    Sketcher.Constraint("Vertical", 5),
    Sketcher.Constraint("Vertical", 6),
    Sketcher.Constraint("Horizontal", 7),
    Sketcher.Constraint("Vertical", 8),
    Sketcher.Constraint("Horizontal", 9),
    Sketcher.Constraint("Symmetric", 0, 2, 6, 2, -1),
    Sketcher.Constraint("Vertical", 5, 2, 7, 2),
    Sketcher.Constraint("DistanceX", 0, 2, 0, 1, 5.0),
    Sketcher.Constraint("DistanceY", 5, 1, 5, 2, 8.0),
    Sketcher.Constraint("DistanceX", 2, 1, 2, 2, 3.9),
    Sketcher.Constraint("DistanceY", 1, 2, 1, 1, 3.4),
    Sketcher.Constraint("DistanceY", 6, 2, 6, 1, 4.5),
    Sketcher.Constraint("DistanceY", 0, 2, -1, 1, 8.0),
    Sketcher.Constraint("DistanceX", -1, 1, 0, 2, 7.5),
])
pocket8 = body.newObject("PartDesign::Pocket", "Pocket007")
pocket8.Profile = sketch9
pocket8.Length = 12

sketch10 = body.newObject("Sketcher::SketchObject", "Sketch009")
sketch10.AttachmentSupport = (doc.getObject("XY_Plane"), [""])
sketch10.MapMode = "FlatFace"
sketch10.AttachmentOffset = App.Placement(Vector(0, 0, 15), App.Rotation())
sketch10.addGeometry([
    Part.LineSegment(Vector(-10.6, 16.25, 0), Vector(-10.6, 11.4, 0)),
    Part.LineSegment(Vector(-10.6, 11.4, 0), Vector(-9.6, 11.4, 0)),
    Part.LineSegment(Vector(-9.6, 11.4, 0), Vector(-9.6, 16.25, 0)),
    Part.LineSegment(Vector(-9.6, 16.25, 0), Vector(-10.6, 16.25, 0)),
    Part.LineSegment(Vector(-10.6, -11.4, 0), Vector(-10.6, -16.25, 0)),
    Part.LineSegment(Vector(-10.6, -16.25, 0), Vector(-9.6, -16.25, 0)),
    Part.LineSegment(Vector(-9.6, -16.25, 0), Vector(-9.6, -11.4, 0)),
    Part.LineSegment(Vector(-9.6, -11.4, 0), Vector(-10.6, -11.4, 0)),
    Part.LineSegment(Vector(5.4, 11.4, 0), Vector(5.4, -11.4, 0)),
    Part.LineSegment(Vector(5.4, -11.4, 0), Vector(6.4, -11.4, 0)),
    Part.LineSegment(Vector(6.4, -11.4, 0), Vector(6.4, 11.4, 0)),
    Part.LineSegment(Vector(6.4, 11.4, 0), Vector(5.4, 11.4, 0)),
], False)
sketch10.addConstraint([
    Sketcher.Constraint("Coincident", 0, 2, 1, 1),
    Sketcher.Constraint("Coincident", 1, 2, 2, 1),
    Sketcher.Constraint("Coincident", 2, 2, 3, 1),
    Sketcher.Constraint("Coincident", 3, 2, 0, 1),
    Sketcher.Constraint("Coincident", 4, 2, 5, 1),
    Sketcher.Constraint("Coincident", 5, 2, 6, 1),
    Sketcher.Constraint("Coincident", 6, 2, 7, 1),
    Sketcher.Constraint("Coincident", 7, 2, 4, 1),
    Sketcher.Constraint("Coincident", 8, 2, 9, 1),
    Sketcher.Constraint("Coincident", 9, 2, 10, 1),
    Sketcher.Constraint("Coincident", 10, 2, 11, 1),
    Sketcher.Constraint("Coincident", 11, 2, 8, 1),
    Sketcher.Constraint("Vertical", 0),
    Sketcher.Constraint("Horizontal", 1),
    Sketcher.Constraint("Vertical", 2),
    Sketcher.Constraint("Horizontal", 3),
    Sketcher.Constraint("Vertical", 4),
    Sketcher.Constraint("Horizontal", 5),
    Sketcher.Constraint("Vertical", 6),
    Sketcher.Constraint("Horizontal", 7),
    Sketcher.Constraint("Vertical", 8),
    Sketcher.Constraint("Horizontal", 9),
    Sketcher.Constraint("Vertical", 10),
    Sketcher.Constraint("Horizontal", 11),
    Sketcher.Constraint("Symmetric", 3, 2, 4, 2, -1),
    Sketcher.Constraint("Symmetric", 1, 2, 6, 2, -1),
    Sketcher.Constraint("Horizontal", 7, 2, 8, 2),
    Sketcher.Constraint("Horizontal", 1, 2, 10, 2),
    Sketcher.Constraint("Equal", 7, 9),
    Sketcher.Constraint("DistanceX", 1, 1, 1, 2, 1.0),
    Sketcher.Constraint("DistanceY", 8, 2, 8, 1, 22.8),
    Sketcher.Constraint("DistanceX", 6, 2, 8, 2, 15.0),
    Sketcher.Constraint("DistanceY", 0, 2, 0, 1, 4.85),
    Sketcher.Constraint("DistanceX", 0, 2, -1, 1, 10.6),
])
pocket9 = body.newObject("PartDesign::Pocket", "Pocket008")
pocket9.Profile = sketch10
pocket9.Length = 12

sketch11 = body.newObject("Sketcher::SketchObject", "Sketch010")
sketch11.AttachmentSupport = (doc.getObject("YZ_Plane"), [""])
sketch11.MapMode = "FlatFace"
sketch11.AttachmentOffset = App.Placement(Vector(0, 0, 17), App.Rotation())
sketch11.addGeometry(Part.Circle(Vector(-5.4, 9, 0), Vector(0, 0, 1), 4.25), False)
sketch11.addConstraint([
    Sketcher.Constraint("Diameter", 0, 8.5),
    Sketcher.Constraint("DistanceY", -1, 1, 0, 3, 9.0),
    Sketcher.Constraint("DistanceX", 0, 3, -1, 1, 5.4),
])
pocket10 = body.newObject("PartDesign::Pocket", "Pocket009")
pocket10.Profile = sketch11
pocket10.Length = 4

sketch12 = body.newObject("Sketcher::SketchObject", "Sketch011")
sketch12.AttachmentSupport = (doc.getObject("XY_Plane"), [""])
sketch12.MapMode = "FlatFace"
sketch12.AttachmentOffset = App.Placement(Vector(0, 0, 15), App.Rotation())
sketch12.addGeometry([
    Part.LineSegment(Vector(-13, 17.25, 0), Vector(-13, 16.25, 0)),
    Part.LineSegment(Vector(-13, 16.25, 0), Vector(-9.6, 16.25, 0)),
    Part.LineSegment(Vector(-9.6, 16.25, 0), Vector(-9.6, 17.25, 0)),
    Part.LineSegment(Vector(-9.6, 17.25, 0), Vector(-13, 17.25, 0)),
    Part.LineSegment(Vector(-13, -16.25, 0), Vector(-13, -17.25, 0)),
    Part.LineSegment(Vector(-13, -17.25, 0), Vector(-9.6, -17.25, 0)),
    Part.LineSegment(Vector(-9.6, -17.25, 0), Vector(-9.6, -16.25, 0)),
    Part.LineSegment(Vector(-9.6, -16.25, 0), Vector(-13, -16.25, 0)),
], False)
sketch12.addConstraint([
    Sketcher.Constraint("Coincident", 0, 2, 1, 1),
    Sketcher.Constraint("Coincident", 1, 2, 2, 1),
    Sketcher.Constraint("Coincident", 2, 2, 3, 1),
    Sketcher.Constraint("Coincident", 3, 2, 0, 1),
    Sketcher.Constraint("Coincident", 4, 2, 5, 1),
    Sketcher.Constraint("Coincident", 5, 2, 6, 1),
    Sketcher.Constraint("Coincident", 6, 2, 7, 1),
    Sketcher.Constraint("Coincident", 7, 2, 4, 1),
    Sketcher.Constraint("Vertical", 0),
    Sketcher.Constraint("Horizontal", 1),
    Sketcher.Constraint("Vertical", 2),
    Sketcher.Constraint("Horizontal", 3),
    Sketcher.Constraint("Vertical", 4),
    Sketcher.Constraint("Horizontal", 5),
    Sketcher.Constraint("Vertical", 6),
    Sketcher.Constraint("Horizontal", 7),
    Sketcher.Constraint("Symmetric", 3, 2, 4, 2, -1),
    Sketcher.Constraint("Symmetric", 1, 2, 6, 2, -1),
    Sketcher.Constraint("DistanceY", 0, 2, 0, 1, 1.0),
    Sketcher.Constraint("DistanceX", 1, 1, 1, 2, 3.4),
    Sketcher.Constraint("DistanceX", 0, 2, -1, 1, 13.0),
    Sketcher.Constraint("DistanceY", 4, 2, 0, 2, 33.5),
])
pocket11 = body.newObject("PartDesign::Pocket", "Pocket010")
pocket11.Profile = sketch12
pocket11.Length = 12

sketch13 = body.newObject("Sketcher::SketchObject", "Sketch012")
sketch13.AttachmentSupport = (doc.getObject("XY_Plane"), [""])
sketch13.MapMode = "FlatFace"
sketch13.AttachmentOffset = App.Placement(Vector(0, 0, 1), App.Rotation())
sketch13.addGeometry([
    Part.Circle(Vector(-10, 8, 0), Vector(0, 0, 1), 1.4),
    Part.Circle(Vector(10, 8, 0), Vector(0, 0, 1), 1.4),
    Part.Circle(Vector(-10, -8, 0), Vector(0, 0, 1), 1.4),
    Part.Circle(Vector(10, -8, 0), Vector(0, 0, 1), 1.4),
], False)
sketch13.addConstraint([
    Sketcher.Constraint("Equal", 0, 1),
    Sketcher.Constraint("Equal", 1, 2),
    Sketcher.Constraint("Equal", 2, 3),
    Sketcher.Constraint("Symmetric", 1, 3, 2, 3, -1, 1),
    Sketcher.Constraint("Symmetric", 0, 3, 3, 3, -1, 1),
    Sketcher.Constraint("Symmetric", 0, 3, 1, 3, -2),
    Sketcher.Constraint("Diameter", 0, 2.8),
    Sketcher.Constraint("DistanceX", 0, 3, -1, 1, 10.0),
    Sketcher.Constraint("DistanceY", -1, 1, 0, 3, 8.0),
])
pocket12 = body.newObject("PartDesign::Pocket", "Pocket011")
pocket12.Profile = sketch13
pocket12.Length = 12

doc.recompute()
